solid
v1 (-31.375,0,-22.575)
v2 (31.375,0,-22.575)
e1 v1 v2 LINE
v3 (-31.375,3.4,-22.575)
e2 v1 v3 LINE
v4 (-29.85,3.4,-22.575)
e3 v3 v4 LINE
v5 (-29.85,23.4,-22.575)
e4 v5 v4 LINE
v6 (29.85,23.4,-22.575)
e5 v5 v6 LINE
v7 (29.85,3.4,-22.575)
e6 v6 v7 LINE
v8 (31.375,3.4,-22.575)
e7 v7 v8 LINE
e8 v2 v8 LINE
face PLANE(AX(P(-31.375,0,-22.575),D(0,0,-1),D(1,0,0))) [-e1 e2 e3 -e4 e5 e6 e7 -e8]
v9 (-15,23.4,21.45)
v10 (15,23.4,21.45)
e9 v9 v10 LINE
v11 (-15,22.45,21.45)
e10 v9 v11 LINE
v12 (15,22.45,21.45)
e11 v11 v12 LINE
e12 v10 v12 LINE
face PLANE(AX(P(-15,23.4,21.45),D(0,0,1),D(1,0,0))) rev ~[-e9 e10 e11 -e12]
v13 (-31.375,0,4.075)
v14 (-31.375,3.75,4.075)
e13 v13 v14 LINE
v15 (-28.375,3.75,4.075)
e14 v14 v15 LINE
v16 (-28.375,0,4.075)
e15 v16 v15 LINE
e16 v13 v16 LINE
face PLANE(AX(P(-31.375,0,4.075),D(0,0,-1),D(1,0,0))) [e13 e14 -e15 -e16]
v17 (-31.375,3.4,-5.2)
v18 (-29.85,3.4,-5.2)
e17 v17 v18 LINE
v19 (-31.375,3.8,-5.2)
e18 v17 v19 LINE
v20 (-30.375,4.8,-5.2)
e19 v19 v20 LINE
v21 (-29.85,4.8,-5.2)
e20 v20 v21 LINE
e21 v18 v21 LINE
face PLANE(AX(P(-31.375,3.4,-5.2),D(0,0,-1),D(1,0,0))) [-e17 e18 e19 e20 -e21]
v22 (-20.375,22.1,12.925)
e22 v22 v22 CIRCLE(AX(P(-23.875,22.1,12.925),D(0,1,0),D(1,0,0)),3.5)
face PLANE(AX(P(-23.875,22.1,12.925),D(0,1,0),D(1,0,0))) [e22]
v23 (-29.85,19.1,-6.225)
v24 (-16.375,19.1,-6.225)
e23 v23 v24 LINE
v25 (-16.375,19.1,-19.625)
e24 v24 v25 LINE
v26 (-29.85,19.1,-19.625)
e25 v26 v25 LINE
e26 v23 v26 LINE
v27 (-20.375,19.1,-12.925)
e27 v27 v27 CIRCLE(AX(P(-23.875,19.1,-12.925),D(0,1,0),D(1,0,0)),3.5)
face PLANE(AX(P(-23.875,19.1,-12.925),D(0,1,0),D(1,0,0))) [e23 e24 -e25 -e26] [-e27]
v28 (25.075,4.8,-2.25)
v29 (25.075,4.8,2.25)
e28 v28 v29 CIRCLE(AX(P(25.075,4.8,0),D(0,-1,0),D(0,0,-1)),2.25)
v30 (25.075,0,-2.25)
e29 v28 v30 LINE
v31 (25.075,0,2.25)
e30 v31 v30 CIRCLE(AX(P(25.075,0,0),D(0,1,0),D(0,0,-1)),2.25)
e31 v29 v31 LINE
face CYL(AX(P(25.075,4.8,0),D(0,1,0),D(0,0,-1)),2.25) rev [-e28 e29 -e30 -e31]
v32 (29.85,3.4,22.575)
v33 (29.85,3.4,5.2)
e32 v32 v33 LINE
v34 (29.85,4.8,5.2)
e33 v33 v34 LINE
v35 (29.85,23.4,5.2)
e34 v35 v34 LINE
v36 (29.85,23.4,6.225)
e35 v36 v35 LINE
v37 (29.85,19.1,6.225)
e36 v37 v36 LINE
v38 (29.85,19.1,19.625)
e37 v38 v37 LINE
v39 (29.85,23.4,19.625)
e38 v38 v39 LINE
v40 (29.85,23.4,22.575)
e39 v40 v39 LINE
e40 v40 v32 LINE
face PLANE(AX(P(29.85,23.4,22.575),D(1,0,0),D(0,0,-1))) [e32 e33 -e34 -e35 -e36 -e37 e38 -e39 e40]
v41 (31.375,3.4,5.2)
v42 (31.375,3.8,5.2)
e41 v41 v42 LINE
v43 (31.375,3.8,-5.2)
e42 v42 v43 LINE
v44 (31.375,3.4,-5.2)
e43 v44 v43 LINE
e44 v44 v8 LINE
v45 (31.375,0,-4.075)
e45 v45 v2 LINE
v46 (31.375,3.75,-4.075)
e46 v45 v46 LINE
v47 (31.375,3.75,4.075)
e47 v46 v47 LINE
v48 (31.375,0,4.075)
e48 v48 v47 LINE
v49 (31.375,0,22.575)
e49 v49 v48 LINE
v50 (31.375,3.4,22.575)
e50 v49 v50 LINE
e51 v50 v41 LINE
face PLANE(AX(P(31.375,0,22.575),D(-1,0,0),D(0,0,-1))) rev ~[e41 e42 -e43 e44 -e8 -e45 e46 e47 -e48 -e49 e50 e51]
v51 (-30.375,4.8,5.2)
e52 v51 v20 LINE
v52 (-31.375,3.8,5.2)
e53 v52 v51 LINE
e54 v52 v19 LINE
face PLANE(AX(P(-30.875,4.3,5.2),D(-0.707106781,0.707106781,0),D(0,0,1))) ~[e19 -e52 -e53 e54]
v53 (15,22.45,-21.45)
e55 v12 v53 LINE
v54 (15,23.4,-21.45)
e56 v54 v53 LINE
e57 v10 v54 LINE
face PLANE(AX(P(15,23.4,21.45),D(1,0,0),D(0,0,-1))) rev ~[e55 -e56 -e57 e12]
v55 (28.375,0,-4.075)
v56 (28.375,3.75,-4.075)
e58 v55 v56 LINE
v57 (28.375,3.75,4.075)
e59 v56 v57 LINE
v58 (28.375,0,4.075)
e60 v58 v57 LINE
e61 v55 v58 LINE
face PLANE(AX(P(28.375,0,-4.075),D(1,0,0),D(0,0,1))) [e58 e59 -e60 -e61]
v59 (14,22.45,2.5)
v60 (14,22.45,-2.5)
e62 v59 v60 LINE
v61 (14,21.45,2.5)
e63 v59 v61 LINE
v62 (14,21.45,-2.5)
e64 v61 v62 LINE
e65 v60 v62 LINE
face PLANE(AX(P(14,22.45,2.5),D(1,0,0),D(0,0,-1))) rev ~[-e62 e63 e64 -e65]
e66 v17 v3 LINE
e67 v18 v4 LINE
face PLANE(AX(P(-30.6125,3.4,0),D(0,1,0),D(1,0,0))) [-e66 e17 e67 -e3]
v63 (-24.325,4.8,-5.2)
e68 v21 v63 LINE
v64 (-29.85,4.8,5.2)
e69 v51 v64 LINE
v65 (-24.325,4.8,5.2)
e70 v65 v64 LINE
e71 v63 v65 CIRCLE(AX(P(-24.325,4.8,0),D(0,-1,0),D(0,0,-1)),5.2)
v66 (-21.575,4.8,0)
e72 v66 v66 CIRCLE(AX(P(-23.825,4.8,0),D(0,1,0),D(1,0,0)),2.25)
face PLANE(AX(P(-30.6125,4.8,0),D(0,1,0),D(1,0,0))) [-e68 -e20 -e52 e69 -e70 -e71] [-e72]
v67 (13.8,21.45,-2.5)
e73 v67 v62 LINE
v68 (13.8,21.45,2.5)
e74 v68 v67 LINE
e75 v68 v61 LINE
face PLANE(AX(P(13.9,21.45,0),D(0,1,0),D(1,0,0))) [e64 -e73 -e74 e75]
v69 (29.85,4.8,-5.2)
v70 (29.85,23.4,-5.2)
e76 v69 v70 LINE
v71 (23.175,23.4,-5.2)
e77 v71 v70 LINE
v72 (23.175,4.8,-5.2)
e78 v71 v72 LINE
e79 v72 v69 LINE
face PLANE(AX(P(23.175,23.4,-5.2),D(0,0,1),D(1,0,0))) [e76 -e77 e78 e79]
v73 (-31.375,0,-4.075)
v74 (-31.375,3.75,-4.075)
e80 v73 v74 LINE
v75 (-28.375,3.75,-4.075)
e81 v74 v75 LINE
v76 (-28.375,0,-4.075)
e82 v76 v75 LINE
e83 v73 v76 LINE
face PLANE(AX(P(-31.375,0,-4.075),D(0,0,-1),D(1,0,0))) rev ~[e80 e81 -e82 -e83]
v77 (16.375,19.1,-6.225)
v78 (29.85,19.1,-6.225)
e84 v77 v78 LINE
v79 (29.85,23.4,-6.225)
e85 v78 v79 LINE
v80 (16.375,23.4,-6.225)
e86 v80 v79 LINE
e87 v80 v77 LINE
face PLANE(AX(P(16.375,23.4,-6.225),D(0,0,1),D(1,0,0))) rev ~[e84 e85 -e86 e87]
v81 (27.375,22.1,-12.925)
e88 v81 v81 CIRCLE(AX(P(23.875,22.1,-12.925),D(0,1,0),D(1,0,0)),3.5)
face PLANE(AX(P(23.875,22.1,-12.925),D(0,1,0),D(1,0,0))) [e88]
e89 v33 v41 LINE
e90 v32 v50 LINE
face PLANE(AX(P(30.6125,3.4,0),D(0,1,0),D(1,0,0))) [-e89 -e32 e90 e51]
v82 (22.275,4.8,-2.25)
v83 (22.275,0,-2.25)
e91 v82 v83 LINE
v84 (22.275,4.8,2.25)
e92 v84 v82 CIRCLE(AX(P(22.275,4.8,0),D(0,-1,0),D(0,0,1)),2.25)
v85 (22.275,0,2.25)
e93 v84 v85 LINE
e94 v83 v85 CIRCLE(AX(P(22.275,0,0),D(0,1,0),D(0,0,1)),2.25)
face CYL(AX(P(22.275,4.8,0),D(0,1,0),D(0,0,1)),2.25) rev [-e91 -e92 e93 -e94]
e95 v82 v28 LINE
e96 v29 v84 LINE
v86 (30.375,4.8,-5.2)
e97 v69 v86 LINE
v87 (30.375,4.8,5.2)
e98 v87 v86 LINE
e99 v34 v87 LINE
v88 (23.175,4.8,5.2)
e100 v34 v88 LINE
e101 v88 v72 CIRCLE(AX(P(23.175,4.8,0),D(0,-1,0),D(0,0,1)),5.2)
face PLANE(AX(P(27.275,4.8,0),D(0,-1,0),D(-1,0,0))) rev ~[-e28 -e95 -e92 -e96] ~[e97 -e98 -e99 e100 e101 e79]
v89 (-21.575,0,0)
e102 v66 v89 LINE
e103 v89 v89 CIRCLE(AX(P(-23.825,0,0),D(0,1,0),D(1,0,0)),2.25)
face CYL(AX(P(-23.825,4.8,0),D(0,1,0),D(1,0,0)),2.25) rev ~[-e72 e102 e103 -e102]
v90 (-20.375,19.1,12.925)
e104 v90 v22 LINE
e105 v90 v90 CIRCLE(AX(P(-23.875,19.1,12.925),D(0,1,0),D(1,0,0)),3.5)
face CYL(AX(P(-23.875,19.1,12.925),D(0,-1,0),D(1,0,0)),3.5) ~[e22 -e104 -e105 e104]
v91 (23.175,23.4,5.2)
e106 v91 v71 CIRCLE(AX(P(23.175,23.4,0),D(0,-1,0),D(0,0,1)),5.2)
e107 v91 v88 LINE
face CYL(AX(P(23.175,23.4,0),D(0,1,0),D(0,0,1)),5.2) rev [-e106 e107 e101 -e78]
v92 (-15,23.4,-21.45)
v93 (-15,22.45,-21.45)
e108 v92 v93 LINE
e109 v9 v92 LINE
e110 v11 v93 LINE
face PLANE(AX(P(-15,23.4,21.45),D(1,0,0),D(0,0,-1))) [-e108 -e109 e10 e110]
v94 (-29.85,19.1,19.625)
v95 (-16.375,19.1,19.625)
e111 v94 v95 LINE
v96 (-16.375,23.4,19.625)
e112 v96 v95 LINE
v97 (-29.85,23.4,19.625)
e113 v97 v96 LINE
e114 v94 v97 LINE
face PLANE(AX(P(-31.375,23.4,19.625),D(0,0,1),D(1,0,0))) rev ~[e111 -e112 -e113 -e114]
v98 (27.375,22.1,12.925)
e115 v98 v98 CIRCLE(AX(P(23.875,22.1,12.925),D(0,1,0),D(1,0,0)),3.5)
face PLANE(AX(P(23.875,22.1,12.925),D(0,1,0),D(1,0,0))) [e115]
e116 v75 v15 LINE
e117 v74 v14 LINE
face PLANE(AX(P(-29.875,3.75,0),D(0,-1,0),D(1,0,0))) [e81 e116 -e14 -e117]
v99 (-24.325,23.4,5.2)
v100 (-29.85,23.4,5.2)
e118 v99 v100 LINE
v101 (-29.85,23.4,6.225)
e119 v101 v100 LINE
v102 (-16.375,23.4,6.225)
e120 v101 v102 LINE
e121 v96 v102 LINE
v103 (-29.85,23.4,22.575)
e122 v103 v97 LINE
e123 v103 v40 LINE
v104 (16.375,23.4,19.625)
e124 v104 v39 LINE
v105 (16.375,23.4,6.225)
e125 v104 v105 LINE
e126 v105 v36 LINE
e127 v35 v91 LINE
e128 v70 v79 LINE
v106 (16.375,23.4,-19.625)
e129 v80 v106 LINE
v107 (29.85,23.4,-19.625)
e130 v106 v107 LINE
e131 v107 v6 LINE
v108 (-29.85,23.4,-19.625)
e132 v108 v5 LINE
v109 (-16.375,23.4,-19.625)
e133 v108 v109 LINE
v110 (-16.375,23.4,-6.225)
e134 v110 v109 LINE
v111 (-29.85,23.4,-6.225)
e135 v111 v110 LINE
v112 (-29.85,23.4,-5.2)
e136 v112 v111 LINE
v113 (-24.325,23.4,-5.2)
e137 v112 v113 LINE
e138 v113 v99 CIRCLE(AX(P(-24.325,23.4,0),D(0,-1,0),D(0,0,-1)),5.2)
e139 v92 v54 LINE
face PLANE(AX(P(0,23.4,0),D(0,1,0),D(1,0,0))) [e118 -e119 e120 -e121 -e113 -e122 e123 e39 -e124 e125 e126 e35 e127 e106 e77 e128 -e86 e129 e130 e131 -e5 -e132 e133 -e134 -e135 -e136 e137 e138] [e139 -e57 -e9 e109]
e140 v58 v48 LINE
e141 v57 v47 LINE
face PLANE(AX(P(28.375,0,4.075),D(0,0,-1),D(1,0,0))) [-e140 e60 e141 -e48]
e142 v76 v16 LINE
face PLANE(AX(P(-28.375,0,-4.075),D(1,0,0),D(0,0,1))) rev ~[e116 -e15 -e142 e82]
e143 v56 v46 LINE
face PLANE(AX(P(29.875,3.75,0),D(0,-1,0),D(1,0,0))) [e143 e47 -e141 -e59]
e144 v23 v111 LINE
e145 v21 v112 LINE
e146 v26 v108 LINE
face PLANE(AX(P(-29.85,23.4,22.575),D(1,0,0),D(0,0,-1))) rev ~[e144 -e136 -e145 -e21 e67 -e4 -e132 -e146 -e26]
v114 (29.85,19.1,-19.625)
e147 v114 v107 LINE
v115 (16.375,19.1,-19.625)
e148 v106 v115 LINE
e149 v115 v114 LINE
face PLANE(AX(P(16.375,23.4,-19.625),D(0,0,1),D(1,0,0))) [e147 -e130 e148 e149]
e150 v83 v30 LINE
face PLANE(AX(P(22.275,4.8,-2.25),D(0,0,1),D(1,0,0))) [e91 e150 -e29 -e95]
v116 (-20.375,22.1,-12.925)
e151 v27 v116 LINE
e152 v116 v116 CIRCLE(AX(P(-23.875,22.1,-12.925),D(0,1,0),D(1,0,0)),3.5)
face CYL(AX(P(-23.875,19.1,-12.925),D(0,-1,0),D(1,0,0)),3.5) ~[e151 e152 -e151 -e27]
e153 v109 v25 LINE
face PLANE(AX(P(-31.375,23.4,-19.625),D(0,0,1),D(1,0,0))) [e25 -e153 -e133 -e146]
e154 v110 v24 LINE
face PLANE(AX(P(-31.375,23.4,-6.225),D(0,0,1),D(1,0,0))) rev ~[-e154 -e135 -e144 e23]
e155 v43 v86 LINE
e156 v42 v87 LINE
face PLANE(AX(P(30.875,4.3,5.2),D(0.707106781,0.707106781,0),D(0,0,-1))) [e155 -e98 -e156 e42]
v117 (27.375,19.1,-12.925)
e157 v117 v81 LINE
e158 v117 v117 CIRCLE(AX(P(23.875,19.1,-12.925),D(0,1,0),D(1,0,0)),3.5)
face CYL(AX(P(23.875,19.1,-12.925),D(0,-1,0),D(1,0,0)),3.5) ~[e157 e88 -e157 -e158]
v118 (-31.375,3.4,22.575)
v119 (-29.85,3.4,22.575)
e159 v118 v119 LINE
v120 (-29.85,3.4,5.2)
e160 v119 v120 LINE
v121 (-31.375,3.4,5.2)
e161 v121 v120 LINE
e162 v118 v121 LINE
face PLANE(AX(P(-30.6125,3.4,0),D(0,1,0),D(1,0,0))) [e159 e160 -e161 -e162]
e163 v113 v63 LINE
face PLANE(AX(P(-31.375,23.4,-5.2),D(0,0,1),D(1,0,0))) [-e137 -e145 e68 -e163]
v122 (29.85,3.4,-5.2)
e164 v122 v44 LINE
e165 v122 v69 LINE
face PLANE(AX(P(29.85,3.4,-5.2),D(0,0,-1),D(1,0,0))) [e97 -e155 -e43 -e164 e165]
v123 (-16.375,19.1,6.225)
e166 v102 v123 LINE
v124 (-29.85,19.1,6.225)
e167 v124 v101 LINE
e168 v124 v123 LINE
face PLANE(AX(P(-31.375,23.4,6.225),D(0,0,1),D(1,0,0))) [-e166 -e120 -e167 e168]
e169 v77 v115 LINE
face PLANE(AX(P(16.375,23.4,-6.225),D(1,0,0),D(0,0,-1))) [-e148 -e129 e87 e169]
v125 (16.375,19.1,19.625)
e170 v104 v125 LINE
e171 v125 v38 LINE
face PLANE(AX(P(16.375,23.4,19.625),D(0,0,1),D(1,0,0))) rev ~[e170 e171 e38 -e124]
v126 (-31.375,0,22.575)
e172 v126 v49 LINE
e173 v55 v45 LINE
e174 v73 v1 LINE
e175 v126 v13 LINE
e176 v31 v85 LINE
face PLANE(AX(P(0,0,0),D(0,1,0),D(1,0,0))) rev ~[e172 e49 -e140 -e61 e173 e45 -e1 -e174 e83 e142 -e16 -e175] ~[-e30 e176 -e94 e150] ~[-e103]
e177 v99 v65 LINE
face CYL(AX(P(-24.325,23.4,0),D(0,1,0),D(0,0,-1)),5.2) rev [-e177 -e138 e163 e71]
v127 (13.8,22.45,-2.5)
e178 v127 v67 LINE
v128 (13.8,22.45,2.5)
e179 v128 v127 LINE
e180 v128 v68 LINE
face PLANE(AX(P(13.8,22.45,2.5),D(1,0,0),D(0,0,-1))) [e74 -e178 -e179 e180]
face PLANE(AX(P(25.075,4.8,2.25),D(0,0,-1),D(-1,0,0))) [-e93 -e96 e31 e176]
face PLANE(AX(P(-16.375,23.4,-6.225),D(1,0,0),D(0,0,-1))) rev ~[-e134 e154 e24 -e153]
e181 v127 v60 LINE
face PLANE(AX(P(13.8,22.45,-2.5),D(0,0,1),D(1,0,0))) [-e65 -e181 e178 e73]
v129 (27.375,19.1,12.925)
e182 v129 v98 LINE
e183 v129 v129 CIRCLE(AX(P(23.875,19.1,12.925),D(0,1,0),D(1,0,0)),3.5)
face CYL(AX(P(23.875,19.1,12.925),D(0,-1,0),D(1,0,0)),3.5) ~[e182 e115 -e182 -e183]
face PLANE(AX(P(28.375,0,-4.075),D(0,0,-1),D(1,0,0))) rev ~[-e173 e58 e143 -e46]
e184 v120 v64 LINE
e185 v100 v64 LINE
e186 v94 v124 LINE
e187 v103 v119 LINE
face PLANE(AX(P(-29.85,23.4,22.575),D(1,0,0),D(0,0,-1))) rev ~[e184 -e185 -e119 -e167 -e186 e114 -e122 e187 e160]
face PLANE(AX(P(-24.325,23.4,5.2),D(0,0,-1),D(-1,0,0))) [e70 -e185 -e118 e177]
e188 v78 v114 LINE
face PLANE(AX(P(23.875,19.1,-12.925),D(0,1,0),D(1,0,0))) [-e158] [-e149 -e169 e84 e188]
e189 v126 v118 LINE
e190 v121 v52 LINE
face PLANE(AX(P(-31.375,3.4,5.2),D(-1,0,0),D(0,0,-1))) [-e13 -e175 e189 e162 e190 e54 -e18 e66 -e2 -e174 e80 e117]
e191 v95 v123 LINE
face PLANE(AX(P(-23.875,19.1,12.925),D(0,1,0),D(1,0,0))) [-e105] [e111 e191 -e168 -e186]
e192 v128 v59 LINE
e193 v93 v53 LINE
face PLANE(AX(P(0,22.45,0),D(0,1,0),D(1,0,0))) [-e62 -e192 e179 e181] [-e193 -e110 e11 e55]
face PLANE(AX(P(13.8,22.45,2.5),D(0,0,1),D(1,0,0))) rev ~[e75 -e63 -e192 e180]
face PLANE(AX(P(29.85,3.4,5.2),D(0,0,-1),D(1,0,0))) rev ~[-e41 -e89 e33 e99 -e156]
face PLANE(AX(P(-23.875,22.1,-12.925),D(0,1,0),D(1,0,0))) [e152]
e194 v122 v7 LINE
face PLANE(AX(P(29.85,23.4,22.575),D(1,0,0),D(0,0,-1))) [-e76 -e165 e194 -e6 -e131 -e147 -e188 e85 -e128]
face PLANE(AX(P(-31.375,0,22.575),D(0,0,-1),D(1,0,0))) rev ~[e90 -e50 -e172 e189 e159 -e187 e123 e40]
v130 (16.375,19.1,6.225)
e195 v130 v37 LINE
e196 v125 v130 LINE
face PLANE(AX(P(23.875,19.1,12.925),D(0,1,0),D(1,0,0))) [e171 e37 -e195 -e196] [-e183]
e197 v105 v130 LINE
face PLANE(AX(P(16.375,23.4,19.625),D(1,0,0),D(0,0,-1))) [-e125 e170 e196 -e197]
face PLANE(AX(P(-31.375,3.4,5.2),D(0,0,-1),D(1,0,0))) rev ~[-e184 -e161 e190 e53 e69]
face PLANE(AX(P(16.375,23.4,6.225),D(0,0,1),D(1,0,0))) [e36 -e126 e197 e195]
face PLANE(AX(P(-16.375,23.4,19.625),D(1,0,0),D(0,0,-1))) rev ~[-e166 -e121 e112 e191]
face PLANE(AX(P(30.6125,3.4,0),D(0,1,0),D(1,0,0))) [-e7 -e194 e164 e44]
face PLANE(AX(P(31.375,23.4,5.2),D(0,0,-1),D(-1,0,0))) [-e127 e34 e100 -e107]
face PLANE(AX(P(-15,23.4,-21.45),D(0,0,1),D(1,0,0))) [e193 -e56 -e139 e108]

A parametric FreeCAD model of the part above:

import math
import FreeCAD as App
import Part
import Sketcher

V = App.Vector
Q = App.Units.Quantity


def edges_at(feature, points):
    """Names of the edges that pass closest to the given points."""
    edges = feature.Shape.Edges
    near = lambda p: min(range(len(edges)), key=lambda i: edges[i].distToShape(Part.Vertex(*p))[0])
    return sorted({f"Edge{near(p) + 1}" for p in points})

doc = App.newDocument("Part")
body = doc.addObject("PartDesign::Body", "Body")

# Sketch on XZ plane
sketch1 = body.newObject("Sketcher::SketchObject", "Sketch")
sketch1.AttachmentSupport = (doc.getObject("XZ_Plane"), [""])
sketch1.MapMode = "FlatFace"
sketch1.addGeometry(Part.LineSegment(V(-31.375, -22.575, 0), V(-31.375, 22.575, 0)), False)
sketch1.addGeometry(Part.LineSegment(V(-31.375, 22.575, 0), V(31.375, 22.575, 0)), False)
sketch1.addGeometry(Part.LineSegment(V(31.375, 22.575, 0), V(31.375, -22.575, 0)), False)
sketch1.addGeometry(Part.LineSegment(V(31.375, -22.575, 0), V(-31.375, -22.575, 0)), False)
sketch1.addConstraint(Sketcher.Constraint("Coincident", 0, 2, 1, 1))
sketch1.addConstraint(Sketcher.Constraint("Coincident", 1, 2, 2, 1))
sketch1.addConstraint(Sketcher.Constraint("Coincident", 2, 2, 3, 1))
sketch1.addConstraint(Sketcher.Constraint("Coincident", 3, 2, 0, 1))
sketch1.addConstraint(Sketcher.Constraint("Vertical", 0))
sketch1.addConstraint(Sketcher.Constraint("Horizontal", 1))
sketch1.addConstraint(Sketcher.Constraint("Vertical", 2))
sketch1.addConstraint(Sketcher.Constraint("Horizontal", 3))
sketch1.addConstraint(Sketcher.Constraint("Symmetric", 0, 2, 2, 2, -1, 1))
sketch1.addConstraint(Sketcher.Constraint("DistanceX", 1, 1, 1, 2, Q("62.75 mm")))
sketch1.addConstraint(Sketcher.Constraint("DistanceY", 0, 1, 0, 2, Q("45.15 mm")))
pad1 = body.newObject("PartDesign::Pad", "Pad")
pad1.Profile = sketch1
pad1.Length = 23.4
pad1.Reversed = True

# Sketch on XZ plane
sketch2 = body.newObject("Sketcher::SketchObject", "Sketch001")
sketch2.AttachmentSupport = (doc.getObject("XZ_Plane"), [""])
sketch2.MapMode = "FlatFace"
sketch2.AttachmentOffset = App.Placement(V(0, 0, -23.4), App.Rotation())
sketch2.addGeometry(Part.LineSegment(V(-15, -21.45, 0), V(-15, 21.45, 0)), False)
sketch2.addGeometry(Part.LineSegment(V(-15, 21.45, 0), V(15, 21.45, 0)), False)
sketch2.addGeometry(Part.LineSegment(V(15, 21.45, 0), V(15, -21.45, 0)), False)
sketch2.addGeometry(Part.LineSegment(V(15, -21.45, 0), V(-15, -21.45, 0)), False)
sketch2.addConstraint(Sketcher.Constraint("Coincident", 0, 2, 1, 1))
sketch2.addConstraint(Sketcher.Constraint("Coincident", 1, 2, 2, 1))
sketch2.addConstraint(Sketcher.Constraint("Coincident", 2, 2, 3, 1))
sketch2.addConstraint(Sketcher.Constraint("Coincident", 3, 2, 0, 1))
sketch2.addConstraint(Sketcher.Constraint("Vertical", 0))
sketch2.addConstraint(Sketcher.Constraint("Horizontal", 1))
sketch2.addConstraint(Sketcher.Constraint("Vertical", 2))
sketch2.addConstraint(Sketcher.Constraint("Horizontal", 3))
sketch2.addConstraint(Sketcher.Constraint("Symmetric", 0, 2, 2, 2, -1, 1))
sketch2.addConstraint(Sketcher.Constraint("DistanceX", 1, 1, 1, 2, Q("30 mm")))
sketch2.addConstraint(Sketcher.Constraint("DistanceY", 0, 1, 0, 2, Q("42.9 mm")))
pocket1 = body.newObject("PartDesign::Pocket", "Pocket")
pocket1.Profile = sketch2
pocket1.Length = 0.95
pocket1.Reversed = True

# Sketch on XZ plane
sketch3 = body.newObject("Sketcher::SketchObject", "Sketch002")
sketch3.AttachmentSupport = (doc.getObject("XZ_Plane"), [""])
sketch3.MapMode = "FlatFace"
sketch3.AttachmentOffset = App.Placement(V(0, 0, -23.4), App.Rotation())
sketch3.addGeometry(Part.LineSegment(V(-31.375, -19.625, 0), V(-31.375, -6.225, 0)), False)
sketch3.addGeometry(Part.LineSegment(V(-31.375, -6.225, 0), V(-16.375, -6.225, 0)), False)
sketch3.addGeometry(Part.LineSegment(V(-16.375, -6.225, 0), V(-16.375, -19.625, 0)), False)
sketch3.addGeometry(Part.LineSegment(V(-16.375, -19.625, 0), V(-31.375, -19.625, 0)), False)
sketch3.addGeometry(Part.LineSegment(V(-31.375, 6.225, 0), V(-31.375, 19.625, 0)), False)
sketch3.addGeometry(Part.LineSegment(V(-31.375, 19.625, 0), V(-16.375, 19.625, 0)), False)
sketch3.addGeometry(Part.LineSegment(V(-16.375, 19.625, 0), V(-16.375, 6.225, 0)), False)
sketch3.addGeometry(Part.LineSegment(V(-16.375, 6.225, 0), V(-31.375, 6.225, 0)), False)
sketch3.addGeometry(Part.LineSegment(V(16.375, 6.225, 0), V(16.375, 19.625, 0)), False)
sketch3.addGeometry(Part.LineSegment(V(16.375, 19.625, 0), V(31.375, 19.625, 0)), False)
sketch3.addGeometry(Part.LineSegment(V(31.375, 19.625, 0), V(31.375, 6.225, 0)), False)
sketch3.addGeometry(Part.LineSegment(V(31.375, 6.225, 0), V(16.375, 6.225, 0)), False)
sketch3.addGeometry(Part.LineSegment(V(16.375, -19.625, 0), V(16.375, -6.225, 0)), False)
sketch3.addGeometry(Part.LineSegment(V(16.375, -6.225, 0), V(31.375, -6.225, 0)), False)
sketch3.addGeometry(Part.LineSegment(V(31.375, -6.225, 0), V(31.375, -19.625, 0)), False)
sketch3.addGeometry(Part.LineSegment(V(31.375, -19.625, 0), V(16.375, -19.625, 0)), False)
sketch3.addConstraint(Sketcher.Constraint("Coincident", 0, 2, 1, 1))
sketch3.addConstraint(Sketcher.Constraint("Coincident", 1, 2, 2, 1))
sketch3.addConstraint(Sketcher.Constraint("Coincident", 2, 2, 3, 1))
sketch3.addConstraint(Sketcher.Constraint("Coincident", 3, 2, 0, 1))
sketch3.addConstraint(Sketcher.Constraint("Coincident", 4, 2, 5, 1))
sketch3.addConstraint(Sketcher.Constraint("Coincident", 5, 2, 6, 1))
sketch3.addConstraint(Sketcher.Constraint("Coincident", 6, 2, 7, 1))
sketch3.addConstraint(Sketcher.Constraint("Coincident", 7, 2, 4, 1))
sketch3.addConstraint(Sketcher.Constraint("Coincident", 8, 2, 9, 1))
sketch3.addConstraint(Sketcher.Constraint("Coincident", 9, 2, 10, 1))
sketch3.addConstraint(Sketcher.Constraint("Coincident", 10, 2, 11, 1))
sketch3.addConstraint(Sketcher.Constraint("Coincident", 11, 2, 8, 1))
sketch3.addConstraint(Sketcher.Constraint("Coincident", 12, 2, 13, 1))
sketch3.addConstraint(Sketcher.Constraint("Coincident", 13, 2, 14, 1))
sketch3.addConstraint(Sketcher.Constraint("Coincident", 14, 2, 15, 1))
sketch3.addConstraint(Sketcher.Constraint("Coincident", 15, 2, 12, 1))
sketch3.addConstraint(Sketcher.Constraint("Vertical", 0))
sketch3.addConstraint(Sketcher.Constraint("Horizontal", 1))
sketch3.addConstraint(Sketcher.Constraint("Vertical", 2))
sketch3.addConstraint(Sketcher.Constraint("Horizontal", 3))
sketch3.addConstraint(Sketcher.Constraint("Vertical", 4))
sketch3.addConstraint(Sketcher.Constraint("Horizontal", 5))
sketch3.addConstraint(Sketcher.Constraint("Vertical", 6))
sketch3.addConstraint(Sketcher.Constraint("Horizontal", 7))
sketch3.addConstraint(Sketcher.Constraint("Vertical", 8))
sketch3.addConstraint(Sketcher.Constraint("Horizontal", 9))
sketch3.addConstraint(Sketcher.Constraint("Vertical", 10))
sketch3.addConstraint(Sketcher.Constraint("Horizontal", 11))
sketch3.addConstraint(Sketcher.Constraint("Vertical", 12))
sketch3.addConstraint(Sketcher.Constraint("Horizontal", 13))
sketch3.addConstraint(Sketcher.Constraint("Vertical", 14))
sketch3.addConstraint(Sketcher.Constraint("Horizontal", 15))
sketch3.addConstraint(Sketcher.Constraint("Symmetric", 2, 2, 8, 2, -1, 1))
sketch3.addConstraint(Sketcher.Constraint("Symmetric", 0, 2, 10, 2, -1, 1))
sketch3.addConstraint(Sketcher.Constraint("Symmetric", 6, 2, 12, 2, -1, 1))
sketch3.addConstraint(Sketcher.Constraint("Symmetric", 4, 2, 14, 2, -1, 1))
sketch3.addConstraint(Sketcher.Constraint("Symmetric", 5, 2, 8, 2, -2))
sketch3.addConstraint(Sketcher.Constraint("Symmetric", 7, 2, 10, 2, -2))
sketch3.addConstraint(Sketcher.Constraint("DistanceX", 1, 1, 1, 2, Q("15 mm")))
sketch3.addConstraint(Sketcher.Constraint("DistanceY", 0, 1, 0, 2, Q("13.4 mm")))
sketch3.addConstraint(Sketcher.Constraint("DistanceY", 0, 2, 4, 2, Q("25.85 mm")))
sketch3.addConstraint(Sketcher.Constraint("DistanceX", 5, 2, 8, 2, Q("32.75 mm")))
pocket2 = body.newObject("PartDesign::Pocket", "Pocket001")
pocket2.Profile = sketch3
pocket2.Length = 4.3
pocket2.Reversed = True

# Sketch on XZ plane
sketch4 = body.newObject("Sketcher::SketchObject", "Sketch003")
sketch4.AttachmentSupport = (doc.getObject("XZ_Plane"), [""])
sketch4.MapMode = "FlatFace"
sketch4.AttachmentOffset = App.Placement(V(0, 0, -19.1), App.Rotation())
sketch4.addGeometry(Part.Circle(V(-23.875, -12.925, 0), V(0, 0, 1), 3.5), False)
sketch4.addGeometry(Part.Circle(V(-23.875, 12.925, 0), V(0, 0, 1), 3.5), False)
sketch4.addGeometry(Part.Circle(V(23.875, 12.925, 0), V(0, 0, 1), 3.5), False)
sketch4.addGeometry(Part.Circle(V(23.875, -12.925, 0), V(0, 0, 1), 3.5), False)
sketch4.addConstraint(Sketcher.Constraint("Equal", 0, 1))
sketch4.addConstraint(Sketcher.Constraint("Equal", 1, 2))
sketch4.addConstraint(Sketcher.Constraint("Equal", 2, 3))
sketch4.addConstraint(Sketcher.Constraint("Symmetric", 0, 3, 2, 3, -1, 1))
sketch4.addConstraint(Sketcher.Constraint("Symmetric", 1, 3, 3, 3, -1, 1))
sketch4.addConstraint(Sketcher.Constraint("Symmetric", 1, 3, 2, 3, -2))
sketch4.addConstraint(Sketcher.Constraint("Diameter", 0, Q("7 mm")))
sketch4.addConstraint(Sketcher.Constraint("DistanceY", 0, 3, 1, 3, Q("25.85 mm")))
sketch4.addConstraint(Sketcher.Constraint("DistanceX", 1, 3, 2, 3, Q("47.75 mm")))
pad2 = body.newObject("PartDesign::Pad", "Pad001")
pad2.Profile = sketch4
pad2.Length = 3
pad2.Reversed = True

# Sketch on XZ plane
sketch5 = body.newObject("Sketcher::SketchObject", "Sketch004")
sketch5.AttachmentSupport = (doc.getObject("XZ_Plane"), [""])
sketch5.MapMode = "FlatFace"
sketch5.AttachmentOffset = App.Placement(V(0, 0, -23.4), App.Rotation())
sketch5.addGeometry(Part.LineSegment(V(23.175, 5.2, 0), V(31.375, 5.2, 0)), False)
sketch5.addGeometry(Part.ArcOfCircle(Part.Circle(V(31.375, 0, 0), V(0, 0, 1), 5.2), math.radians(-90), math.radians(90)), False)
sketch5.addGeometry(Part.LineSegment(V(31.375, -5.2, 0), V(23.175, -5.2, 0)), False)
sketch5.addGeometry(Part.ArcOfCircle(Part.Circle(V(23.175, 0, 0), V(0, 0, 1), 5.2), math.radians(90), math.radians(270)), False)
sketch5.addGeometry(Part.LineSegment(V(-24.325, -5.2, 0), V(-31.375, -5.2, 0)), False)
sketch5.addGeometry(Part.ArcOfCircle(Part.Circle(V(-31.375, 0, 0), V(0, 0, 1), 5.2), math.radians(90), math.radians(270)), False)
sketch5.addGeometry(Part.LineSegment(V(-31.375, 5.2, 0), V(-24.325, 5.2, 0)), False)
sketch5.addGeometry(Part.ArcOfCircle(Part.Circle(V(-24.325, 0, 0), V(0, 0, 1), 5.2), math.radians(-90), math.radians(90)), False)
sketch5.addConstraint(Sketcher.Constraint("Tangent", 0, 2, 1, 2))
sketch5.addConstraint(Sketcher.Constraint("Tangent", 1, 1, 2, 1))
sketch5.addConstraint(Sketcher.Constraint("Tangent", 2, 2, 3, 2))
sketch5.addConstraint(Sketcher.Constraint("Tangent", 3, 1, 0, 1))
sketch5.addConstraint(Sketcher.Constraint("Tangent", 4, 2, 5, 2))
sketch5.addConstraint(Sketcher.Constraint("Tangent", 5, 1, 6, 1))
sketch5.addConstraint(Sketcher.Constraint("Tangent", 6, 2, 7, 2))
sketch5.addConstraint(Sketcher.Constraint("Tangent", 7, 1, 4, 1))
sketch5.addConstraint(Sketcher.Constraint("Horizontal", 0))
sketch5.addConstraint(Sketcher.Constraint("Horizontal", 2))
sketch5.addConstraint(Sketcher.Constraint("Horizontal", 4))
sketch5.addConstraint(Sketcher.Constraint("Horizontal", 6))
sketch5.addConstraint(Sketcher.Constraint("Equal", 3, 5))
sketch5.addConstraint(Sketcher.Constraint("Symmetric", 1, 3, 5, 3, -1, 1))
sketch5.addConstraint(Sketcher.Constraint("PointOnObject", 1, 3, -1))
sketch5.addConstraint(Sketcher.Constraint("Radius", 1, Q("5.2 mm")))
sketch5.addConstraint(Sketcher.Constraint("DistanceX", 0, 1, 0, 2, Q("8.2 mm")))
sketch5.addConstraint(Sketcher.Constraint("DistanceX", 4, 2, 4, 1, Q("7.05 mm")))
sketch5.addConstraint(Sketcher.Constraint("DistanceX", 7, 3, 3, 3, Q("47.5 mm")))
pocket3 = body.newObject("PartDesign::Pocket", "Pocket002")
pocket3.Profile = sketch5
pocket3.Length = 18.6
pocket3.Reversed = True

# Sketch on XZ plane
sketch6 = body.newObject("Sketcher::SketchObject", "Sketch005")
sketch6.AttachmentSupport = (doc.getObject("XZ_Plane"), [""])
sketch6.MapMode = "FlatFace"
sketch6.AttachmentOffset = App.Placement(V(0, 0, -22.45), App.Rotation())
sketch6.addGeometry(Part.LineSegment(V(13.8, -2.5, 0), V(13.8, 2.5, 0)), False)
sketch6.addGeometry(Part.LineSegment(V(13.8, 2.5, 0), V(14, 2.5, 0)), False)
sketch6.addGeometry(Part.LineSegment(V(14, 2.5, 0), V(14, -2.5, 0)), False)
sketch6.addGeometry(Part.LineSegment(V(14, -2.5, 0), V(13.8, -2.5, 0)), False)
sketch6.addConstraint(Sketcher.Constraint("Coincident", 0, 2, 1, 1))
sketch6.addConstraint(Sketcher.Constraint("Coincident", 1, 2, 2, 1))
sketch6.addConstraint(Sketcher.Constraint("Coincident", 2, 2, 3, 1))
sketch6.addConstraint(Sketcher.Constraint("Coincident", 3, 2, 0, 1))
sketch6.addConstraint(Sketcher.Constraint("Vertical", 0))
sketch6.addConstraint(Sketcher.Constraint("Horizontal", 1))
sketch6.addConstraint(Sketcher.Constraint("Vertical", 2))
sketch6.addConstraint(Sketcher.Constraint("Horizontal", 3))
sketch6.addConstraint(Sketcher.Constraint("DistanceY", 0, 1, 0, 2, Q("5 mm")))
sketch6.addConstraint(Sketcher.Constraint("DistanceX", 1, 1, 1, 2, Q("0.2 mm")))
sketch6.addConstraint(Sketcher.Constraint("DistanceX", -1, 1, 1, 2, Q("14 mm")))
sketch6.addConstraint(Sketcher.Constraint("DistanceY", -1, 1, 0, 2, Q("2.5 mm")))
pocket4 = body.newObject("PartDesign::Pocket", "Pocket003")
pocket4.Profile = sketch6
pocket4.Type = "TwoLengths"
pocket4.Length = 1.95
pocket4.Length2 = 1

# Sketch on XZ plane
sketch7 = body.newObject("Sketcher::SketchObject", "Sketch006")
sketch7.AttachmentSupport = (doc.getObject("XZ_Plane"), [""])
sketch7.MapMode = "FlatFace"
sketch7.AttachmentOffset = App.Placement(V(0, 0, -4.8), App.Rotation())
sketch7.addGeometry(Part.LineSegment(V(25.075, -2.25, 0), V(22.275, -2.25, 0)), False)
sketch7.addGeometry(Part.ArcOfCircle(Part.Circle(V(22.275, 0, 0), V(0, 0, 1), 2.25), math.radians(90), math.radians(270)), False)
sketch7.addGeometry(Part.LineSegment(V(22.275, 2.25, 0), V(25.075, 2.25, 0)), False)
sketch7.addGeometry(Part.ArcOfCircle(Part.Circle(V(25.075, 0, 0), V(0, 0, 1), 2.25), math.radians(-90), math.radians(90)), False)
sketch7.addConstraint(Sketcher.Constraint("Tangent", 0, 2, 1, 2))
sketch7.addConstraint(Sketcher.Constraint("Tangent", 1, 1, 2, 1))
sketch7.addConstraint(Sketcher.Constraint("Tangent", 2, 2, 3, 2))
sketch7.addConstraint(Sketcher.Constraint("Tangent", 3, 1, 0, 1))
sketch7.addConstraint(Sketcher.Constraint("Horizontal", 0))
sketch7.addConstraint(Sketcher.Constraint("Horizontal", 2))
sketch7.addConstraint(Sketcher.Constraint("PointOnObject", 1, 3, -1))
sketch7.addConstraint(Sketcher.Constraint("Radius", 1, Q("2.25 mm")))
sketch7.addConstraint(Sketcher.Constraint("DistanceX", 0, 2, 0, 1, Q("2.8 mm")))
sketch7.addConstraint(Sketcher.Constraint("DistanceX", -1, 1, 1, 3, Q("22.275 mm")))
pocket5 = body.newObject("PartDesign::Pocket", "Pocket004")
pocket5.Profile = sketch7
pocket5.Type = "ThroughAll"
pocket5.Reversed = True

# Sketch on XZ plane
sketch8 = body.newObject("Sketcher::SketchObject", "Sketch007")
sketch8.AttachmentSupport = (doc.getObject("XZ_Plane"), [""])
sketch8.MapMode = "FlatFace"
sketch8.AttachmentOffset = App.Placement(V(0, 0, -4.8), App.Rotation())
sketch8.addGeometry(Part.Circle(V(-23.825, 0, 0), V(0, 0, 1), 2.25), False)
sketch8.addConstraint(Sketcher.Constraint("PointOnObject", 0, 3, -1))
sketch8.addConstraint(Sketcher.Constraint("Diameter", 0, Q("4.5 mm")))
sketch8.addConstraint(Sketcher.Constraint("DistanceX", 0, 3, -1, 1, Q("23.825 mm")))
pocket6 = body.newObject("PartDesign::Pocket", "Pocket005")
pocket6.Profile = sketch8
pocket6.Type = "ThroughAll"
pocket6.Reversed = True

# Sketch on XZ plane
sketch9 = body.newObject("Sketcher::SketchObject", "Sketch008")
sketch9.AttachmentSupport = (doc.getObject("XZ_Plane"), [""])
sketch9.MapMode = "FlatFace"
sketch9.AttachmentOffset = App.Placement(V(0, 0, -23.4), App.Rotation())
sketch9.addGeometry(Part.LineSegment(V(-31.375, -22.575, 0), V(-31.375, 22.575, 0)), False)
sketch9.addGeometry(Part.LineSegment(V(-31.375, 22.575, 0), V(-29.85, 22.575, 0)), False)
sketch9.addGeometry(Part.LineSegment(V(-29.85, 22.575, 0), V(-29.85, -22.575, 0)), False)
sketch9.addGeometry(Part.LineSegment(V(-29.85, -22.575, 0), V(-31.375, -22.575, 0)), False)
sketch9.addGeometry(Part.LineSegment(V(29.85, -22.575, 0), V(29.85, 22.575, 0)), False)
sketch9.addGeometry(Part.LineSegment(V(29.85, 22.575, 0), V(31.375, 22.575, 0)), False)
sketch9.addGeometry(Part.LineSegment(V(31.375, 22.575, 0), V(31.375, -22.575, 0)), False)
sketch9.addGeometry(Part.LineSegment(V(31.375, -22.575, 0), V(29.85, -22.575, 0)), False)
sketch9.addConstraint(Sketcher.Constraint("Coincident", 0, 2, 1, 1))
sketch9.addConstraint(Sketcher.Constraint("Coincident", 1, 2, 2, 1))
sketch9.addConstraint(Sketcher.Constraint("Coincident", 2, 2, 3, 1))
sketch9.addConstraint(Sketcher.Constraint("Coincident", 3, 2, 0, 1))
sketch9.addConstraint(Sketcher.Constraint("Coincident", 4, 2, 5, 1))
sketch9.addConstraint(Sketcher.Constraint("Coincident", 5, 2, 6, 1))
sketch9.addConstraint(Sketcher.Constraint("Coincident", 6, 2, 7, 1))
sketch9.addConstraint(Sketcher.Constraint("Coincident", 7, 2, 4, 1))
sketch9.addConstraint(Sketcher.Constraint("Vertical", 0))
sketch9.addConstraint(Sketcher.Constraint("Horizontal", 1))
sketch9.addConstraint(Sketcher.Constraint("Vertical", 2))
sketch9.addConstraint(Sketcher.Constraint("Horizontal", 3))
sketch9.addConstraint(Sketcher.Constraint("Vertical", 4))
sketch9.addConstraint(Sketcher.Constraint("Horizontal", 5))
sketch9.addConstraint(Sketcher.Constraint("Vertical", 6))
sketch9.addConstraint(Sketcher.Constraint("Horizontal", 7))
sketch9.addConstraint(Sketcher.Constraint("Symmetric", 2, 2, 4, 2, -1, 1))
sketch9.addConstraint(Sketcher.Constraint("Symmetric", 0, 2, 6, 2, -1, 1))
sketch9.addConstraint(Sketcher.Constraint("Horizontal", 1, 2, 4, 2))
sketch9.addConstraint(Sketcher.Constraint("DistanceY", 0, 1, 0, 2, Q("45.15 mm")))
sketch9.addConstraint(Sketcher.Constraint("DistanceX", 1, 2, 4, 2, Q("59.7 mm")))
sketch9.addConstraint(Sketcher.Constraint("DistanceX", 1, 1, 1, 2, Q("1.525 mm")))
pocket7 = body.newObject("PartDesign::Pocket", "Pocket006")
pocket7.Profile = sketch9
pocket7.Length = 20
pocket7.Reversed = True

# Sketch on XZ plane
sketch10 = body.newObject("Sketcher::SketchObject", "Sketch009")
sketch10.AttachmentSupport = (doc.getObject("XZ_Plane"), [""])
sketch10.MapMode = "FlatFace"
sketch10.AttachmentOffset = App.Placement(V(0, 0, -3.4), App.Rotation())
sketch10.addGeometry(Part.LineSegment(V(-31.375, -5.2, 0), V(-31.375, 5.2, 0)), False)
sketch10.addGeometry(Part.LineSegment(V(-31.375, 5.2, 0), V(-29.85, 5.2, 0)), False)
sketch10.addGeometry(Part.LineSegment(V(-29.85, 5.2, 0), V(-29.85, -5.2, 0)), False)
sketch10.addGeometry(Part.LineSegment(V(-29.85, -5.2, 0), V(-31.375, -5.2, 0)), False)
sketch10.addGeometry(Part.LineSegment(V(29.85, -5.2, 0), V(29.85, 5.2, 0)), False)
sketch10.addGeometry(Part.LineSegment(V(29.85, 5.2, 0), V(31.375, 5.2, 0)), False)
sketch10.addGeometry(Part.LineSegment(V(31.375, 5.2, 0), V(31.375, -5.2, 0)), False)
sketch10.addGeometry(Part.LineSegment(V(31.375, -5.2, 0), V(29.85, -5.2, 0)), False)
sketch10.addConstraint(Sketcher.Constraint("Coincident", 0, 2, 1, 1))
sketch10.addConstraint(Sketcher.Constraint("Coincident", 1, 2, 2, 1))
sketch10.addConstraint(Sketcher.Constraint("Coincident", 2, 2, 3, 1))
sketch10.addConstraint(Sketcher.Constraint("Coincident", 3, 2, 0, 1))
sketch10.addConstraint(Sketcher.Constraint("Coincident", 4, 2, 5, 1))
sketch10.addConstraint(Sketcher.Constraint("Coincident", 5, 2, 6, 1))
sketch10.addConstraint(Sketcher.Constraint("Coincident", 6, 2, 7, 1))
sketch10.addConstraint(Sketcher.Constraint("Coincident", 7, 2, 4, 1))
sketch10.addConstraint(Sketcher.Constraint("Vertical", 0))
sketch10.addConstraint(Sketcher.Constraint("Horizontal", 1))
sketch10.addConstraint(Sketcher.Constraint("Vertical", 2))
sketch10.addConstraint(Sketcher.Constraint("Horizontal", 3))
sketch10.addConstraint(Sketcher.Constraint("Vertical", 4))
sketch10.addConstraint(Sketcher.Constraint("Horizontal", 5))
sketch10.addConstraint(Sketcher.Constraint("Vertical", 6))
sketch10.addConstraint(Sketcher.Constraint("Horizontal", 7))
sketch10.addConstraint(Sketcher.Constraint("Symmetric", 2, 2, 4, 2, -1, 1))
sketch10.addConstraint(Sketcher.Constraint("Symmetric", 0, 2, 6, 2, -1, 1))
sketch10.addConstraint(Sketcher.Constraint("Horizontal", 1, 2, 4, 2))
sketch10.addConstraint(Sketcher.Constraint("DistanceY", 0, 1, 0, 2, Q("10.4 mm")))
sketch10.addConstraint(Sketcher.Constraint("DistanceX", 1, 2, 4, 2, Q("59.7 mm")))
sketch10.addConstraint(Sketcher.Constraint("DistanceX", 1, 1, 1, 2, Q("1.525 mm")))
pad3 = body.newObject("PartDesign::Pad", "Pad002")
pad3.Profile = sketch10
pad3.Length = 1.4
pad3.Reversed = True
doc.recompute()

chamfer = body.newObject("PartDesign::Chamfer", "Chamfer")
chamfer.Base = (pad3, edges_at(pad3, [(-31.375, 4.8, 0), (31.375, 4.8, 0)]))
chamfer.Size = 1

# Sketch on XZ plane
sketch11 = body.newObject("Sketcher::SketchObject", "Sketch010")
sketch11.AttachmentSupport = (doc.getObject("XZ_Plane"), [""])
sketch11.MapMode = "FlatFace"
sketch11.addGeometry(Part.LineSegment(V(28.375, 4.075, 0), V(28.375, -4.075, 0)), False)
sketch11.addGeometry(Part.LineSegment(V(28.375, -4.075, 0), V(31.375, -4.075, 0)), False)
sketch11.addGeometry(Part.LineSegment(V(31.375, -4.075, 0), V(31.375, 4.075, 0)), False)
sketch11.addGeometry(Part.LineSegment(V(31.375, 4.075, 0), V(28.375, 4.075, 0)), False)
sketch11.addGeometry(Part.LineSegment(V(-31.375, 4.075, 0), V(-31.375, -4.075, 0)), False)
sketch11.addGeometry(Part.LineSegment(V(-31.375, -4.075, 0), V(-28.375, -4.075, 0)), False)
sketch11.addGeometry(Part.LineSegment(V(-28.375, -4.075, 0), V(-28.375, 4.075, 0)), False)
sketch11.addGeometry(Part.LineSegment(V(-28.375, 4.075, 0), V(-31.375, 4.075, 0)), False)
sketch11.addConstraint(Sketcher.Constraint("Coincident", 0, 2, 1, 1))
sketch11.addConstraint(Sketcher.Constraint("Coincident", 1, 2, 2, 1))
sketch11.addConstraint(Sketcher.Constraint("Coincident", 2, 2, 3, 1))
sketch11.addConstraint(Sketcher.Constraint("Coincident", 3, 2, 0, 1))
sketch11.addConstraint(Sketcher.Constraint("Coincident", 4, 2, 5, 1))
sketch11.addConstraint(Sketcher.Constraint("Coincident", 5, 2, 6, 1))
sketch11.addConstraint(Sketcher.Constraint("Coincident", 6, 2, 7, 1))
sketch11.addConstraint(Sketcher.Constraint("Coincident", 7, 2, 4, 1))
sketch11.addConstraint(Sketcher.Constraint("Vertical", 0))
sketch11.addConstraint(Sketcher.Constraint("Horizontal", 1))
sketch11.addConstraint(Sketcher.Constraint("Vertical", 2))
sketch11.addConstraint(Sketcher.Constraint("Horizontal", 3))
sketch11.addConstraint(Sketcher.Constraint("Vertical", 4))
sketch11.addConstraint(Sketcher.Constraint("Horizontal", 5))
sketch11.addConstraint(Sketcher.Constraint("Vertical", 6))
sketch11.addConstraint(Sketcher.Constraint("Horizontal", 7))
sketch11.addConstraint(Sketcher.Constraint("Symmetric", 2, 2, 4, 2, -1, 1))
sketch11.addConstraint(Sketcher.Constraint("Symmetric", 0, 2, 6, 2, -1, 1))
sketch11.addConstraint(Sketcher.Constraint("Horizontal", 1, 2, 4, 2))
sketch11.addConstraint(Sketcher.Constraint("DistanceX", 1, 1, 1, 2, Q("3 mm")))
sketch11.addConstraint(Sketcher.Constraint("DistanceY", 0, 2, 0, 1, Q("8.15 mm")))
sketch11.addConstraint(Sketcher.Constraint("DistanceX", 4, 2, 0, 2, Q("59.75 mm")))
pocket8 = body.newObject("PartDesign::Pocket", "Pocket007")
pocket8.Profile = sketch11
pocket8.Length = 3.75

doc.recompute()
